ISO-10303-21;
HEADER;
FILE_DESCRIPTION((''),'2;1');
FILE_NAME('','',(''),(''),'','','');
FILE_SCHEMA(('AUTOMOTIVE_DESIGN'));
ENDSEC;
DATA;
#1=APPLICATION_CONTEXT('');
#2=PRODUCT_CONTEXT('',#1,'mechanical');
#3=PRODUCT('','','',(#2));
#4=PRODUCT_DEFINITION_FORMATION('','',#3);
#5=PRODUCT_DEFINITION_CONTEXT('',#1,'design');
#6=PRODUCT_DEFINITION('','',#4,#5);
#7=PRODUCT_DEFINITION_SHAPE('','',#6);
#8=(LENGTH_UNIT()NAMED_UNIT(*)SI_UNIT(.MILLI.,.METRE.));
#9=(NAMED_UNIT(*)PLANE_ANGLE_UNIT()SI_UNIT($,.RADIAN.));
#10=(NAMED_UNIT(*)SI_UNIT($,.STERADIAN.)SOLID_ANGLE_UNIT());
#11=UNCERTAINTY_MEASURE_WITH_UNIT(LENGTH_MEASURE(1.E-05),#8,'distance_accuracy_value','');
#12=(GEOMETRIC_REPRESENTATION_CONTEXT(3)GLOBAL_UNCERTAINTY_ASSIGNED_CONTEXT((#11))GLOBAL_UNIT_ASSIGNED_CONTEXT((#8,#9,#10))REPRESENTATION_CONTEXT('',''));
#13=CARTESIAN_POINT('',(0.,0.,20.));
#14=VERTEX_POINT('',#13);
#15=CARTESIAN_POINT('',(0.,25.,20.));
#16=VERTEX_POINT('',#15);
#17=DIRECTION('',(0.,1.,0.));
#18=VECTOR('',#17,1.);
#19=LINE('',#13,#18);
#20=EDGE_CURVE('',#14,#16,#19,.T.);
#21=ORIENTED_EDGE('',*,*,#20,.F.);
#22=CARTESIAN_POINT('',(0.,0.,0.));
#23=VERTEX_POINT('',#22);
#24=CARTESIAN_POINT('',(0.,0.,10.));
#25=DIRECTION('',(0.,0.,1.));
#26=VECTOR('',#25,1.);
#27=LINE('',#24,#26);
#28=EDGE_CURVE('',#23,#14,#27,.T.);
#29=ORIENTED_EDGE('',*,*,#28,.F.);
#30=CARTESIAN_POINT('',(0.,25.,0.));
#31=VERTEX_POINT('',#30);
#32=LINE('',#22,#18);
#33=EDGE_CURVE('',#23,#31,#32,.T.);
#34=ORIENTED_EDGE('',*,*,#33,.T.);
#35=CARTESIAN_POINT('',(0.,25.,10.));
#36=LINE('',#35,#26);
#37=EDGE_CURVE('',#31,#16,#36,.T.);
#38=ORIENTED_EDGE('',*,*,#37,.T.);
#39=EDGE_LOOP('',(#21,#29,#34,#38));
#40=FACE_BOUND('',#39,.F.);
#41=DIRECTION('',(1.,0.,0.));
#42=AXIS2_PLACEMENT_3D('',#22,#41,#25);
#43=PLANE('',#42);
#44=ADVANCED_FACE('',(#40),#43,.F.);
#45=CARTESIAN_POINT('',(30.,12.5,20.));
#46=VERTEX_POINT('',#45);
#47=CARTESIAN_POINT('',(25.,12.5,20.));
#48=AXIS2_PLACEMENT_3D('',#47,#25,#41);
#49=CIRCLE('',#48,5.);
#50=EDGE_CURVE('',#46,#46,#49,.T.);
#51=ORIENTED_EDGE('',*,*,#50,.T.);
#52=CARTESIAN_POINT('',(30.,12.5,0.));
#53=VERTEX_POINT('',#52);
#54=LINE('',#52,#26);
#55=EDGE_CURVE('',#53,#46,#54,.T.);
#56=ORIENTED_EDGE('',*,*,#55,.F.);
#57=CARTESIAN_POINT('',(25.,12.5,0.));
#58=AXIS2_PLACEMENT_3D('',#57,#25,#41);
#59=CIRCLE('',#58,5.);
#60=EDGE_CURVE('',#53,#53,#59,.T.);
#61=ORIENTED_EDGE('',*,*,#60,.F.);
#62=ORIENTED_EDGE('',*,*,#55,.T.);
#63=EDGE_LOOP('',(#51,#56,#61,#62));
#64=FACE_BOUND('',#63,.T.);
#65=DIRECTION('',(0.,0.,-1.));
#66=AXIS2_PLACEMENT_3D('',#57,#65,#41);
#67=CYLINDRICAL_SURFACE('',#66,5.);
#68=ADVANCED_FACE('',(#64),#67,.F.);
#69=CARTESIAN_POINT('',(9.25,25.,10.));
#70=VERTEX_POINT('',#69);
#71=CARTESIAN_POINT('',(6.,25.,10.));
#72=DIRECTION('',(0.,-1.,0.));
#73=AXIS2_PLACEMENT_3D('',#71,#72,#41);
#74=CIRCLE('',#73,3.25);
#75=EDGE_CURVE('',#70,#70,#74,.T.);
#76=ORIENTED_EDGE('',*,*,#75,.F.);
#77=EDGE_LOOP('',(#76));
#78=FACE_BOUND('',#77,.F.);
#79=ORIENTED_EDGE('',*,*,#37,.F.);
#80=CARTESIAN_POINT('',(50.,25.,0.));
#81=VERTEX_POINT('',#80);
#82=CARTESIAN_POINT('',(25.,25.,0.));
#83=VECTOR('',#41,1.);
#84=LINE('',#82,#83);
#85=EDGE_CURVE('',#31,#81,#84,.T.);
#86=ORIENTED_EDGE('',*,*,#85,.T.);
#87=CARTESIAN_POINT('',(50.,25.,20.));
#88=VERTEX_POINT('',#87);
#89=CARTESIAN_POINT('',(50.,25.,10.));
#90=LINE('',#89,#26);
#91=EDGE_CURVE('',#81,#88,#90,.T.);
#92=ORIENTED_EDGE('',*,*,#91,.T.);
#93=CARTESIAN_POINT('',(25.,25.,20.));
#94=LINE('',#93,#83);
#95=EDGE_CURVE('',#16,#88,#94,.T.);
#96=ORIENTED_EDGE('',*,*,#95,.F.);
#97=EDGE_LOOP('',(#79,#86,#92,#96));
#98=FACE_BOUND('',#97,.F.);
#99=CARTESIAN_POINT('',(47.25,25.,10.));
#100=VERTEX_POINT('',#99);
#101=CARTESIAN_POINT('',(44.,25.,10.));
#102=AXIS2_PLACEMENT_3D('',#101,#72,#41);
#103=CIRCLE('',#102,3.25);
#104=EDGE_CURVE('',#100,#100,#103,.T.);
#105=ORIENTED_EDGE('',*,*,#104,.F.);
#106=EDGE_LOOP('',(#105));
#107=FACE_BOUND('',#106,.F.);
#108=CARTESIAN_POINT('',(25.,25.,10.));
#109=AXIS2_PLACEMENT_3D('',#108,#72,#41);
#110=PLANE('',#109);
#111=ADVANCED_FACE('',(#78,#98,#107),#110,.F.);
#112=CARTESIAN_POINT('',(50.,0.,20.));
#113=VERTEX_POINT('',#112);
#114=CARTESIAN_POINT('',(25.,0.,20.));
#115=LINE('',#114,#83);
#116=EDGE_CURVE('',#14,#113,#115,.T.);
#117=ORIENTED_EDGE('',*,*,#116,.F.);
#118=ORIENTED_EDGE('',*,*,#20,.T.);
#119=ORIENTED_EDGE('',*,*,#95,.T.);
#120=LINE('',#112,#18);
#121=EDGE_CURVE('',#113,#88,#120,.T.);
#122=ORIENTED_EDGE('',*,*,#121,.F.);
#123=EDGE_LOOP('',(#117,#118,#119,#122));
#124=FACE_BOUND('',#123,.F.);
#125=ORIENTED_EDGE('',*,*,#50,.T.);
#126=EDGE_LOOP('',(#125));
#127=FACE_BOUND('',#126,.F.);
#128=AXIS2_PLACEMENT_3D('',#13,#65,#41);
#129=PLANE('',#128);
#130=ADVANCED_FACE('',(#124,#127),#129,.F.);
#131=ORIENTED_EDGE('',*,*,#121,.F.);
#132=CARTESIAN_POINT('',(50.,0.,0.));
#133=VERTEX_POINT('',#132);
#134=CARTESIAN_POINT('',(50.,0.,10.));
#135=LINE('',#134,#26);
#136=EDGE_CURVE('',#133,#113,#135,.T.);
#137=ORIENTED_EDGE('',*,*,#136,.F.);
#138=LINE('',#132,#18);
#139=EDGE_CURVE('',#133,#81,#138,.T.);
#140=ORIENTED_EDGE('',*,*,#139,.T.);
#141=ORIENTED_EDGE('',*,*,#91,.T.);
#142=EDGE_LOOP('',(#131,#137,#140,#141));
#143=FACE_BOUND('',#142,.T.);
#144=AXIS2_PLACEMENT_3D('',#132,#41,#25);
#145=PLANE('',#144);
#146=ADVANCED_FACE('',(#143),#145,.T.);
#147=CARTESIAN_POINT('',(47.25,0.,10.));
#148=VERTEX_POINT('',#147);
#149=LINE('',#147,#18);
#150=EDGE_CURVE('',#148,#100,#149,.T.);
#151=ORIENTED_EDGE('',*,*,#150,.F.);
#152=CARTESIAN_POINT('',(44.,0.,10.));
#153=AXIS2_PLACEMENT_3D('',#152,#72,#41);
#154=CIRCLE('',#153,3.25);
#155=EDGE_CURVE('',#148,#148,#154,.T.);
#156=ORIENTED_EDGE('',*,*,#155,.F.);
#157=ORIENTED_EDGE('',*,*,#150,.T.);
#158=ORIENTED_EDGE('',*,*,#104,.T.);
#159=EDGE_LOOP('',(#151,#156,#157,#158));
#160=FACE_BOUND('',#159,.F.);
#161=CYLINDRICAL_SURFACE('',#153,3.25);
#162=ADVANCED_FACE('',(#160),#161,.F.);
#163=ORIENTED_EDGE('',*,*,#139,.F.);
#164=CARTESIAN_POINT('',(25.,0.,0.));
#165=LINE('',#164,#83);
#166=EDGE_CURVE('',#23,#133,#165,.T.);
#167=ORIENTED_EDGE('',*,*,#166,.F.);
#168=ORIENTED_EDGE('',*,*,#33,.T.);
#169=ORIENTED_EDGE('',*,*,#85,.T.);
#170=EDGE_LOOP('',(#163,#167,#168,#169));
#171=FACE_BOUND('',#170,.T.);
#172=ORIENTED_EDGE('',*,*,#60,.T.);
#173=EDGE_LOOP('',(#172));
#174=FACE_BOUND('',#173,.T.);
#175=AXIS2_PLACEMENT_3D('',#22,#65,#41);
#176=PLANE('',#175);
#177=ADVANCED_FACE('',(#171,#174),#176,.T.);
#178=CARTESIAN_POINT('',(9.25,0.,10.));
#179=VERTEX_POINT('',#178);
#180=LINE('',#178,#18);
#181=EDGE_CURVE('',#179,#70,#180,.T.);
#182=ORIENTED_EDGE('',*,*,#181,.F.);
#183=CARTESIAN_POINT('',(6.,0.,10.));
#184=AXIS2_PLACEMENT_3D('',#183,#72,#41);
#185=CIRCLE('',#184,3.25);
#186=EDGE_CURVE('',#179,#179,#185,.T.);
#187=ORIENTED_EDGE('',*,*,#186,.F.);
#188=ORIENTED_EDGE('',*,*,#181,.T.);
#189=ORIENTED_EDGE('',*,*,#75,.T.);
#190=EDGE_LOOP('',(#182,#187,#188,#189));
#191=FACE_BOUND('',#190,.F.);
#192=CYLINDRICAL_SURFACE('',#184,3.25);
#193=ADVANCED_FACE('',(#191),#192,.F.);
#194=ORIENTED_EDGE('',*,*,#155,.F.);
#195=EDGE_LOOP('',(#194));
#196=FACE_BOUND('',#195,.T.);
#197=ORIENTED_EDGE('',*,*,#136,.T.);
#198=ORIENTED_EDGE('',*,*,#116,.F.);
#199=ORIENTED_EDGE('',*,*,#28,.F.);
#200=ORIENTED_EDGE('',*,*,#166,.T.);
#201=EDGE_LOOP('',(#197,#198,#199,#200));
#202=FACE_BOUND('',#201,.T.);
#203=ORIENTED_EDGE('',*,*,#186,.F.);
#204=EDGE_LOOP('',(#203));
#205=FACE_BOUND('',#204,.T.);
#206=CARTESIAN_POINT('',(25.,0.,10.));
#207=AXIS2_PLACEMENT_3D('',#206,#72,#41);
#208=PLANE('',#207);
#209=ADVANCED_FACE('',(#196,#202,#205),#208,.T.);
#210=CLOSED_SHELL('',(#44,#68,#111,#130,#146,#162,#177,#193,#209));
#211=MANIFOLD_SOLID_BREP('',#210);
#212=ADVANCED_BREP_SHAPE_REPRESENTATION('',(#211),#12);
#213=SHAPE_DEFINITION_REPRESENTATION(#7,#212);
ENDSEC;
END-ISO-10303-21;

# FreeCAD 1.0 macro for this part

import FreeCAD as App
import Part
import Sketcher

V = App.Vector
Q = App.Units.Quantity

doc = App.newDocument("Part")
params = doc.addObject("Spreadsheet::Sheet", "Params")
for row, (alias, value) in enumerate([
    ("sketch1_diameter", "6.5 mm"),
    ("sketch1_width", "50 mm"),
    ("sketch1_height", "20 mm"),
    ("pad1_length", "25 mm"),
    ("sketch2_diameter", "10 mm"),
    ("pad2_length", "20 mm"),
], start=1):
    params.set(f"A{row}", alias)
    params.set(f"B{row}", "=" + value)
    params.setAlias(f"B{row}", alias)

body = doc.addObject("PartDesign::Body", "Body")

# Sketch on XZ plane
sketch1 = doc.addObject("Sketcher::SketchObject", "Sketch")
body.addObject(sketch1)
sketch1.AttachmentSupport = (doc.XZ_Plane, [""])
sketch1.MapMode = "FlatFace"
sketch1.addGeometry([
    Part.LineSegment(V(0, 20, 0), V(0, 0, 0)),  # 0
    Part.LineSegment(V(0, 0, 0), V(50, 0, 0)),  # 1
    Part.LineSegment(V(50, 0, 0), V(50, 20, 0)),  # 2
    Part.LineSegment(V(50, 20, 0), V(0, 20, 0)),  # 3
    Part.Circle(V(6, 10, 0), V(0, 0, 1), 3.25),  # 4
    Part.Circle(V(44, 10, 0), V(0, 0, 1), 3.25),  # 5
], False)
sketch1.addConstraint([
    Sketcher.Constraint("Coincident", 0, 2, 1, 1),
    Sketcher.Constraint("Coincident", 1, 2, 2, 1),
    Sketcher.Constraint("Coincident", 2, 2, 3, 1),
    Sketcher.Constraint("Coincident", 3, 2, 0, 1),
    Sketcher.Constraint("Vertical", 0),
    Sketcher.Constraint("Horizontal", 1),
    Sketcher.Constraint("Vertical", 2),
    Sketcher.Constraint("Horizontal", 3),
    Sketcher.Constraint("Coincident", 0, 2, -1, 1),
    Sketcher.Constraint("Equal", 4, 5),
    Sketcher.Constraint("Horizontal", 4, 3, 5, 3),
    Sketcher.Constraint("Diameter", 4, Q("6.5 mm")),
    Sketcher.Constraint("DistanceX", 1, 1, 1, 2, Q("50 mm")),
    Sketcher.Constraint("DistanceY", 0, 2, 0, 1, Q("20 mm")),
    Sketcher.Constraint("DistanceX", -1, 1, 4, 3, Q("6 mm")),
    Sketcher.Constraint("DistanceY", -1, 1, 4, 3, Q("10 mm")),
    Sketcher.Constraint("DistanceX", -1, 1, 5, 3, Q("44 mm")),
])
sketch1.setExpression("Constraints[11]", "Params.sketch1_diameter")
sketch1.setExpression("Constraints[12]", "Params.sketch1_width")
sketch1.setExpression("Constraints[13]", "Params.sketch1_height")
pad1 = doc.addObject("PartDesign::Pad", "Pad")
body.addObject(pad1)
pad1.Profile = sketch1
pad1.setExpression("Length", "Params.pad1_length")
pad1.Reversed = True
body2 = doc.addObject("PartDesign::Body", "Body001")

# Sketch on XY plane
sketch2 = doc.addObject("Sketcher::SketchObject", "Sketch001")
body2.addObject(sketch2)
sketch2.AttachmentSupport = (doc.getObject("XY_Plane001"), [""])
sketch2.MapMode = "FlatFace"
sketch2.addGeometry(Part.Circle(V(25, 12.5, 0), V(0, 0, 1), 5), False)
sketch2.addConstraint([
    Sketcher.Constraint("Diameter", 0, Q("10 mm")),
    Sketcher.Constraint("DistanceX", -1, 1, 0, 3, Q("25 mm")),
    Sketcher.Constraint("DistanceY", -1, 1, 0, 3, Q("12.5 mm")),
])
sketch2.setExpression("Constraints[0]", "Params.sketch2_diameter")
pad2 = doc.addObject("PartDesign::Pad", "Pad001")
body2.addObject(pad2)
pad2.Profile = sketch2
pad2.setExpression("Length", "Params.pad2_length")
doc.recompute()

boolean = doc.addObject("PartDesign::Boolean", "Boolean")
body.addObject(boolean)
boolean.Type = "Cut"
boolean.addObjects([body2])

doc.recompute()
